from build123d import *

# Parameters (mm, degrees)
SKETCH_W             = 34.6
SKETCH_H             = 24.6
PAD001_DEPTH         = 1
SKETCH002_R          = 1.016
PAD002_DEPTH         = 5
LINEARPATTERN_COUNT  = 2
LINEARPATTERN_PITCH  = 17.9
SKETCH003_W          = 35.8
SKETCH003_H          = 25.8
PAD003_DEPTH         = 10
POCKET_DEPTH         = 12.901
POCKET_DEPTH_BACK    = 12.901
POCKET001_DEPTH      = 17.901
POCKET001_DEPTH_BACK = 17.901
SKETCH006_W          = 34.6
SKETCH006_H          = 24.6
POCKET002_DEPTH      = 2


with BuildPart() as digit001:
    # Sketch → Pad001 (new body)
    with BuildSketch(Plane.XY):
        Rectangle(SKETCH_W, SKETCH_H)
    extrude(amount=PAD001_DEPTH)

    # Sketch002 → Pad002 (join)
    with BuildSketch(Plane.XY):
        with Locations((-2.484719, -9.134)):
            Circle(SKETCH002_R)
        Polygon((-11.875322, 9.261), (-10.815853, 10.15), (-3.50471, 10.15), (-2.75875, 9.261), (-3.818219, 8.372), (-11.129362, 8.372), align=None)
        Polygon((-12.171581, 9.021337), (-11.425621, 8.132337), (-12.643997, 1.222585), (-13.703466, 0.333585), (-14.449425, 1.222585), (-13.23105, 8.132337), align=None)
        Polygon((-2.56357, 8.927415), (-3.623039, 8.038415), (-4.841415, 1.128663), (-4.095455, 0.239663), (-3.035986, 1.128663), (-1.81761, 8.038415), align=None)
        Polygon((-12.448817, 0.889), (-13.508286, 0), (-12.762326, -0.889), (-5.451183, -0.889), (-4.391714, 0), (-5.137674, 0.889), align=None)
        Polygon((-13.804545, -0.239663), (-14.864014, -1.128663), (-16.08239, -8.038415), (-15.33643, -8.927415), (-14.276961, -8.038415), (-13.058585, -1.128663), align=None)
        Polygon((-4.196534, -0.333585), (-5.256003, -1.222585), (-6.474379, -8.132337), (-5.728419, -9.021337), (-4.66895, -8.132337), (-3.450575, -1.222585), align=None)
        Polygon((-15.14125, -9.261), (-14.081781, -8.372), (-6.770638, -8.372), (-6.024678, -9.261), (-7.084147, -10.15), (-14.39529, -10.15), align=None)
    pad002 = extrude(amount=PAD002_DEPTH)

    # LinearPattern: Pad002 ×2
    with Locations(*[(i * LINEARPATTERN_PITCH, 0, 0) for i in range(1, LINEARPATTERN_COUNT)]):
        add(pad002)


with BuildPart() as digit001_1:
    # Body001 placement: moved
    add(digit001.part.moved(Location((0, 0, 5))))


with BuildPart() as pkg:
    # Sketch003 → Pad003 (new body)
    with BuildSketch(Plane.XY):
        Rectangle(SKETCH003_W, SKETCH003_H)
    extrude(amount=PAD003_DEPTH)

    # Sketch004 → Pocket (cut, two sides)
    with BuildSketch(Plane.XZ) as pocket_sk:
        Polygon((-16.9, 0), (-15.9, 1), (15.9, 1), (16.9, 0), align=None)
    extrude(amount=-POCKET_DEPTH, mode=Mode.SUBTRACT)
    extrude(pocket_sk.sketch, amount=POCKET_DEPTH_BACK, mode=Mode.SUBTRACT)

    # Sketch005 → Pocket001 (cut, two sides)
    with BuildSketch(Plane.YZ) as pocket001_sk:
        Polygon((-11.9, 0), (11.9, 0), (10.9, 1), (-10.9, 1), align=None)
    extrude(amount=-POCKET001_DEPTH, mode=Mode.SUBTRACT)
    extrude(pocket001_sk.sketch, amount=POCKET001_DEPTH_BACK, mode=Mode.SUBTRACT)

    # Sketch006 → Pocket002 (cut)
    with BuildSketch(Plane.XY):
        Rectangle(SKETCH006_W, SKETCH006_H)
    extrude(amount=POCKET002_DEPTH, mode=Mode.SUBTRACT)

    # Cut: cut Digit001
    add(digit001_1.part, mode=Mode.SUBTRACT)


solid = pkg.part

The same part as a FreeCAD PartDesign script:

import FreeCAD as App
import Part
import Sketcher
from FreeCAD import Vector
Q = App.Units.Quantity


def add_polygon(sketch, points):
    """Adds a closed chain of lines whose ends are joined by coincident constraints."""
    first, n = sketch.GeometryCount, len(points)
    for a, b in zip(points, points[1:] + points[:1]):
        sketch.addGeometry(Part.LineSegment(App.Vector(*a, 0), App.Vector(*b, 0)), False)
    for i in range(n):
        sketch.addConstraint(Sketcher.Constraint("Coincident", first + i, 2, first + (i + 1) % n, 1))

doc = App.newDocument("Part")
body = doc.addObject("PartDesign::Body", "Body")

# Sketch on XY plane
sketch1 = body.newObject("Sketcher::SketchObject", "Sketch")
sketch1.AttachmentSupport = (doc.getObject("XY_Plane"), [""])
sketch1.MapMode = "FlatFace"
add_polygon(sketch1, [(-17, 12), (-17, -12), (17, -12), (17, 12)])  # lines 0-3
sketch1.addConstraint([
    Sketcher.Constraint("Vertical", 0),
    Sketcher.Constraint("Horizontal", 1),
    Sketcher.Constraint("Vertical", 2),
    Sketcher.Constraint("Horizontal", 3),
    Sketcher.Constraint("Symmetric", 0, 2, 2, 2, -1, 1),
    Sketcher.Constraint("DistanceX", 1, 1, 1, 2, Q("34.6 mm")),
    Sketcher.Constraint("DistanceY", 0, 2, 0, 1, Q("24.6 mm")),
])
pad1 = body.newObject("PartDesign::Pad", "Pad")
pad1.Profile = sketch1
pad1.Length = 1

# Sketch on XY plane
sketch2 = body.newObject("Sketcher::SketchObject", "Sketch001")
sketch2.AttachmentSupport = (doc.getObject("XY_Plane"), [""])
sketch2.MapMode = "FlatFace"
sketch2.addGeometry(Part.Circle(Vector(-2.5, -9.1, 0), Vector(0, 0, 1), 1), False)  # 0
add_polygon(sketch2, [(-10.8, 10.2), (-11.9, 9.3), (-11.1, 8.4), (-3.8, 8.4), (-2.8, 9.3), (-3.5, 10.2)])  # lines 1-6
add_polygon(sketch2, [(-11.4, 8.1), (-12.2, 9), (-13.2, 8.1), (-14.4, 1.2), (-13.7, 0.3), (-12.6, 1.2)])  # lines 7-12
add_polygon(sketch2, [(-2.6, 8.9), (-3.6, 8), (-4.8, 1.1), (-4.1, 0.2), (-3, 1.1), (-1.8, 8)])  # lines 13-18
add_polygon(sketch2, [(-12.4, 0.9), (-13.5, 0), (-12.8, -0.9), (-5.5, -0.9), (-4.4, 0), (-5.1, 0.9)])  # lines 19-24
add_polygon(sketch2, [(-13.8, -0.2), (-14.9, -1.1), (-16.1, -8), (-15.3, -8.9), (-14.3, -8), (-13.1, -1.1)])  # lines 25-30
add_polygon(sketch2, [(-4.2, -0.3), (-5.3, -1.2), (-6.5, -8.1), (-5.7, -9), (-4.7, -8.1), (-3.5, -1.2)])  # lines 31-36
add_polygon(sketch2, [(-14.1, -8.4), (-15.1, -9.3), (-14.4, -10.2), (-7.1, -10.2), (-6, -9.3), (-6.8, -8.4)])  # lines 37-42
sketch2.addConstraint([
    Sketcher.Constraint("Horizontal", 3),
    Sketcher.Constraint("Horizontal", 6),
    Sketcher.Constraint("Horizontal", 21),
    Sketcher.Constraint("Horizontal", 24),
    Sketcher.Constraint("Horizontal", 39),
    Sketcher.Constraint("Horizontal", 42),
    Sketcher.Constraint("PointOnObject", 19, 2, -1),
    Sketcher.Constraint("PointOnObject", 22, 2, -1),
    Sketcher.Constraint("Perpendicular", 1, 2),
    Sketcher.Constraint("Perpendicular", 2, 4),
    Sketcher.Constraint("Perpendicular", 4, 5),
    Sketcher.Constraint("Parallel", 5, 7),
    Sketcher.Constraint("Perpendicular", 7, 8),
    Sketcher.Constraint("Perpendicular", 8, 10),
    Sketcher.Constraint("Perpendicular", 10, 11),
    Sketcher.Constraint("Parallel", 9, 12),
    Sketcher.Constraint("Parallel", 11, 13),
    Sketcher.Constraint("Parallel", 12, 14),
    Sketcher.Constraint("Perpendicular", 13, 15),
    Sketcher.Constraint("Perpendicular", 15, 16),
    Sketcher.Constraint("Parallel", 14, 17),
    Sketcher.Constraint("Perpendicular", 16, 18),
    Sketcher.Constraint("Perpendicular", 18, 19),
    Sketcher.Constraint("Perpendicular", 19, 20),
    Sketcher.Constraint("Perpendicular", 20, 22),
    Sketcher.Constraint("Perpendicular", 22, 23),
    Sketcher.Constraint("Perpendicular", 23, 25),
    Sketcher.Constraint("Parallel", 17, 26),
    Sketcher.Constraint("Perpendicular", 25, 27),
    Sketcher.Constraint("Perpendicular", 27, 28),
    Sketcher.Constraint("Parallel", 26, 29),
    Sketcher.Constraint("Perpendicular", 28, 30),
    Sketcher.Constraint("Perpendicular", 30, 31),
    Sketcher.Constraint("Parallel", 29, 32),
    Sketcher.Constraint("Perpendicular", 31, 33),
    Sketcher.Constraint("Perpendicular", 33, 34),
    Sketcher.Constraint("Parallel", 32, 35),
    Sketcher.Constraint("Perpendicular", 34, 36),
    Sketcher.Constraint("Perpendicular", 36, 37),
    Sketcher.Constraint("Perpendicular", 37, 38),
    Sketcher.Constraint("Perpendicular", 38, 40),
    Sketcher.Constraint("Perpendicular", 40, 41),
    Sketcher.Constraint("Horizontal", 1, 2, 4, 2),
    Sketcher.Constraint("Horizontal", 9, 2, 11, 2),
    Sketcher.Constraint("Horizontal", 8, 2, 12, 2),
    Sketcher.Constraint("Horizontal", 14, 2, 16, 2),
    Sketcher.Constraint("Horizontal", 13, 2, 17, 2),
    Sketcher.Constraint("Horizontal", 26, 2, 28, 2),
    Sketcher.Constraint("Horizontal", 25, 2, 29, 2),
    Sketcher.Constraint("Horizontal", 32, 2, 34, 2),
    Sketcher.Constraint("Horizontal", 31, 2, 35, 2),
    Sketcher.Constraint("Horizontal", 37, 2, 40, 2),
    Sketcher.Constraint("Equal", 3, 6),
    Sketcher.Constraint("Equal", 6, 21),
    Sketcher.Constraint("Equal", 21, 24),
    Sketcher.Constraint("Equal", 24, 39),
    Sketcher.Constraint("Equal", 39, 42),
    Sketcher.Constraint("Equal", 5, 7),
    Sketcher.Constraint("Equal", 11, 13),
    Sketcher.Constraint("Equal", 12, 14),
    Sketcher.Constraint("Equal", 16, 19),
    Sketcher.Constraint("Equal", 22, 25),
    Sketcher.Constraint("Equal", 17, 26),
    Sketcher.Constraint("Equal", 28, 31),
    Sketcher.Constraint("Equal", 29, 32),
    Sketcher.Constraint("Equal", 34, 37),
    Sketcher.Constraint("Angle", 1, Q("-140.000001 deg")),
    Sketcher.Constraint("Angle", 9, Q("-99.999994 deg")),
    Sketcher.Constraint("Diameter", 0, Q("2.032 mm")),
    Sketcher.Constraint("DistanceY", -1, 1, 5, 2, Q("10.15 mm")),
    Sketcher.Constraint("DistanceY", 38, 2, -1, 1, Q("10.15 mm")),
    Sketcher.Constraint("DistanceY", 0, 3, -1, 1, Q("9.134 mm")),
    Sketcher.Constraint("DistanceY", -1, 1, 1, 2, Q("9.261 mm")),
    Sketcher.Constraint("DistanceY", 26, 2, 10, 2, Q("8.372 mm")),
    Sketcher.Constraint("DistanceX", 3, 2, 0, 3, Q("1.3335 mm")),
    Sketcher.Constraint("DistanceX", 1, 2, 12, 2, Q("0.449701 mm")),
    Sketcher.Constraint("DistanceX", 5, 2, 17, 2, Q("1.6871 mm")),
    Sketcher.Constraint("DistanceX", 9, 2, 20, 2, Q("1.687099 mm")),
    Sketcher.Constraint("DistanceX", 19, 2, 29, 2, Q("0.449701 mm")),
    Sketcher.Constraint("DistanceX", 33, 2, 0, 3, Q("3.2437 mm")),
    Sketcher.Constraint("DistanceX", 26, 2, 38, 2, Q("1.6871 mm")),
    Sketcher.Constraint("DistanceX", 32, 2, 40, 2, Q("0.449701 mm")),
    Sketcher.Constraint("DistanceX", 3, 1, 3, 2, Q("7.311143 mm")),
    Sketcher.Constraint("DistanceX", 0, 3, -1, 1, Q("2.484719 mm")),
    Sketcher.Constraint("DistanceY", 31, 2, 14, 2, Q("2.351248 mm")),
    Sketcher.Constraint("DistanceY", 32, 2, 28, 2, Q("0.093922 mm")),
    Sketcher.Constraint("DistanceY", -1, 1, 7, 2, Q("9.021337 mm")),
])
pad2 = body.newObject("PartDesign::Pad", "Pad001")
pad2.Profile = sketch2
pad2.Length = 5
doc.recompute()

linearpattern = body.newObject("PartDesign::LinearPattern", "LinearPattern")
linearpattern.Originals = [pad2]
linearpattern.Direction = (doc.getObject("X_Axis"), [""])
linearpattern.Mode = "offset"
linearpattern.Offset = 17.9
linearpattern.Occurrences = 2
body.Tip = linearpattern
body2 = doc.addObject("PartDesign::Body", "Body001")
doc.recompute()

body.Placement = App.Placement(Vector(0, 0, 5), App.Rotation(Vector(0, 0, 1), 0))
boolean = body2.newObject("PartDesign::Boolean", "Boolean")
boolean.Type = "Fuse"
boolean.addObjects([body])
body3 = doc.addObject("PartDesign::Body", "Body002")

# Sketch on XY plane
sketch3 = body3.newObject("Sketcher::SketchObject", "Sketch002")
sketch3.AttachmentSupport = (doc.getObject("XY_Plane002"), [""])
sketch3.MapMode = "FlatFace"
add_polygon(sketch3, [(-18, 13), (-18, -13), (18, -13), (18, 13)])  # lines 0-3
sketch3.addConstraint([
    Sketcher.Constraint("Vertical", 0),
    Sketcher.Constraint("Horizontal", 1),
    Sketcher.Constraint("Vertical", 2),
    Sketcher.Constraint("Horizontal", 3),
    Sketcher.Constraint("Symmetric", 0, 2, 2, 2, -1, 1),
    Sketcher.Constraint("DistanceX", 1, 1, 1, 2, Q("35.8 mm")),
    Sketcher.Constraint("DistanceY", 0, 2, 0, 1, Q("25.8 mm")),
])
pad3 = body3.newObject("PartDesign::Pad", "Pad002")
pad3.Profile = sketch3
pad3.Length = 10

# Sketch on XZ plane
sketch4 = body3.newObject("Sketcher::SketchObject", "Sketch003")
sketch4.AttachmentSupport = (doc.getObject("XZ_Plane002"), [""])
sketch4.MapMode = "FlatFace"
add_polygon(sketch4, [(-15.9, 1), (-16.9, 0), (16.9, 0), (15.9, 1)])  # lines 0-3
sketch4.addConstraint([
    Sketcher.Constraint("Horizontal", 1),
    Sketcher.Constraint("Horizontal", 3),
    Sketcher.Constraint("Symmetric", 0, 2, 1, 2, -1, 1),
    Sketcher.Constraint("Perpendicular", 0, 2),
    Sketcher.Constraint("Equal", 0, 2),
    Sketcher.Constraint("DistanceX", 1, 1, 1, 2, Q("33.8 mm")),
    Sketcher.Constraint("DistanceX", 3, 2, 3, 1, Q("31.8 mm")),
])
pocket1 = body3.newObject("PartDesign::Pocket", "Pocket")
pocket1.Profile = sketch4
pocket1.Type = "ThroughAll"
pocket1.Midplane = True

# Sketch on YZ plane
sketch5 = body3.newObject("Sketcher::SketchObject", "Sketch004")
sketch5.AttachmentSupport = (doc.getObject("YZ_Plane002"), [""])
sketch5.MapMode = "FlatFace"
add_polygon(sketch5, [(-11.9, 0), (11.9, 0), (10.9, 1), (-10.9, 1)])  # lines 0-3
sketch5.addConstraint([
    Sketcher.Constraint("Horizontal", 0),
    Sketcher.Constraint("Horizontal", 2),
    Sketcher.Constraint("Symmetric", 0, 2, 3, 2, -1, 1),
    Sketcher.Constraint("Perpendicular", 1, 3),
    Sketcher.Constraint("Equal", 1, 3),
    Sketcher.Constraint("DistanceX", 0, 1, 0, 2, Q("23.8 mm")),
    Sketcher.Constraint("DistanceX", 2, 2, 2, 1, Q("21.8 mm")),
])
pocket2 = body3.newObject("PartDesign::Pocket", "Pocket001")
pocket2.Profile = sketch5
pocket2.Type = "ThroughAll"
pocket2.Midplane = True

# Sketch on XY plane
sketch6 = body3.newObject("Sketcher::SketchObject", "Sketch005")
sketch6.AttachmentSupport = (doc.getObject("XY_Plane002"), [""])
sketch6.MapMode = "FlatFace"
add_polygon(sketch6, [(-17, 12), (-17, -12), (17, -12), (17, 12)])  # lines 0-3
sketch6.addConstraint([
    Sketcher.Constraint("Vertical", 0),
    Sketcher.Constraint("Horizontal", 1),
    Sketcher.Constraint("Vertical", 2),
    Sketcher.Constraint("Horizontal", 3),
    Sketcher.Constraint("Symmetric", 0, 2, 2, 2, -1, 1),
    Sketcher.Constraint("DistanceX", 1, 1, 1, 2, Q("34.6 mm")),
    Sketcher.Constraint("DistanceY", 0, 2, 0, 1, Q("24.6 mm")),
])
pocket3 = body3.newObject("PartDesign::Pocket", "Pocket002")
pocket3.Profile = sketch6
pocket3.Length = 2
pocket3.Reversed = True
doc.recompute()

boolean2 = body3.newObject("PartDesign::Boolean", "Boolean001")
boolean2.Type = "Cut"
boolean2.addObjects([body2])

doc.recompute()
